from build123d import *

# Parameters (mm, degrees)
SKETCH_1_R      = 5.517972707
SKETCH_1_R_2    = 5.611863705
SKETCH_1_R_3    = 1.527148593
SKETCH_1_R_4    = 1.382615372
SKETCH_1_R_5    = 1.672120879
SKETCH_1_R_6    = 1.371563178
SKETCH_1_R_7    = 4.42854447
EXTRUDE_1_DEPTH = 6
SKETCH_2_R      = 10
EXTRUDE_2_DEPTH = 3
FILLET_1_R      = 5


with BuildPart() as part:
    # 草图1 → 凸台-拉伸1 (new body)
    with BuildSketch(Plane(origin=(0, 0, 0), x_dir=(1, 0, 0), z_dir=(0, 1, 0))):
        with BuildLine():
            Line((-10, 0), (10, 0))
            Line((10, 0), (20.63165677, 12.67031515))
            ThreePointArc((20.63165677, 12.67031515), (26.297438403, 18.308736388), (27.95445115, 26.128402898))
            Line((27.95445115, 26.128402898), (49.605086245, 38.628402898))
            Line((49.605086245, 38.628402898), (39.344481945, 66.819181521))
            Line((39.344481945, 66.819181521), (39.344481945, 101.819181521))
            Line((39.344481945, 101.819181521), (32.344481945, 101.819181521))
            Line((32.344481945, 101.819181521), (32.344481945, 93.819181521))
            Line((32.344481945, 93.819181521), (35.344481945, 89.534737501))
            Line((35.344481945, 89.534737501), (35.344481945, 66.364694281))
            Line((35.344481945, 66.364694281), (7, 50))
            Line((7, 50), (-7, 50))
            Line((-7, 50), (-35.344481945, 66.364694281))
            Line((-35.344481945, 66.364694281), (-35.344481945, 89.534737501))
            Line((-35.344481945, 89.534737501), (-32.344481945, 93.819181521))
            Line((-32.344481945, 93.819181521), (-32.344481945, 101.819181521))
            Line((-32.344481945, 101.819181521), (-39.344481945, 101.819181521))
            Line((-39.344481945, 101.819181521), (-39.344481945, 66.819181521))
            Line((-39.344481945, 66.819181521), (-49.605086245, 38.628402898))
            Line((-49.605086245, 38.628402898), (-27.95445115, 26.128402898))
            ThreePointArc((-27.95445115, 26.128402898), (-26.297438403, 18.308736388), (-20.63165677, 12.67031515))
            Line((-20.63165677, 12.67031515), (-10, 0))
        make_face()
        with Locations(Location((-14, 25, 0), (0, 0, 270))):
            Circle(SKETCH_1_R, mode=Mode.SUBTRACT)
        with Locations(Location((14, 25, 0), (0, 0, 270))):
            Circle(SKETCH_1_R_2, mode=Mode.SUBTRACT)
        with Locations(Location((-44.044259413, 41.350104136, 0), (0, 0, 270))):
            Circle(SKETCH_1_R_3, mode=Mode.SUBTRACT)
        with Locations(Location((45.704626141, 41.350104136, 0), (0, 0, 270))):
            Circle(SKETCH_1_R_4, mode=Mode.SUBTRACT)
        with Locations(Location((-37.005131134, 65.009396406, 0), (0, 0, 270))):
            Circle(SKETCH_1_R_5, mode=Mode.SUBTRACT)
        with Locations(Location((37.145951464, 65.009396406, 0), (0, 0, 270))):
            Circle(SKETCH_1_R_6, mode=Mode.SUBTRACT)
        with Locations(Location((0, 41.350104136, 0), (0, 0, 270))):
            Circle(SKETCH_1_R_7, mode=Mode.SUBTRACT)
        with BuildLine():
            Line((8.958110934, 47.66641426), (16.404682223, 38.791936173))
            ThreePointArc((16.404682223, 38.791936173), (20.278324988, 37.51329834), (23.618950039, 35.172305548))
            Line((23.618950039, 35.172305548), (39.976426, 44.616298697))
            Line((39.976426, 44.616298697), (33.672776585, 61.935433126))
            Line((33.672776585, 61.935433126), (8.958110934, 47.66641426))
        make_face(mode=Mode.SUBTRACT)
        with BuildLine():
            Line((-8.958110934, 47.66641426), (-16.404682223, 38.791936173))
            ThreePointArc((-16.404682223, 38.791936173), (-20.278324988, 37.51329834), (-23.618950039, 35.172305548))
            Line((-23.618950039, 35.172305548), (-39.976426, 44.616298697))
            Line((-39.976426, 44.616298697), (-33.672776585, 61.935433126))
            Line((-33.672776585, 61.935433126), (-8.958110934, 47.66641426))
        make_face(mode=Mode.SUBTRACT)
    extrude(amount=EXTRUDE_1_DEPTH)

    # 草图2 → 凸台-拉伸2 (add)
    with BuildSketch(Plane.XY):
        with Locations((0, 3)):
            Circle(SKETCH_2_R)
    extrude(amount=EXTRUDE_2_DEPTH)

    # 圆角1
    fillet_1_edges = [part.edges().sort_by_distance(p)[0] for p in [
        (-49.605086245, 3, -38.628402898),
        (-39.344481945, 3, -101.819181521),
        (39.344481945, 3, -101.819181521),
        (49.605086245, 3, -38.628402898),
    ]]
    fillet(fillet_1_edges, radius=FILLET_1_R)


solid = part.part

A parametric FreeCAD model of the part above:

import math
import FreeCAD as App
import Part
import Sketcher

V = App.Vector
Q = App.Units.Quantity


def edges_at(feature, points):
    """Names of the edges that pass closest to the given points."""
    edges = feature.Shape.Edges
    near = lambda p: min(range(len(edges)), key=lambda i: edges[i].distToShape(Part.Vertex(*p))[0])
    return sorted({f"Edge{near(p) + 1}" for p in points})

doc = App.newDocument("Part")
body = doc.addObject("PartDesign::Body", "Body")

# Sketch on XZ plane
sketch1 = body.newObject("Sketcher::SketchObject", "Sketch")
sketch1.AttachmentSupport = (doc.getObject("XZ_Plane"), [""])
sketch1.MapMode = "FlatFace"
sketch1.addGeometry(Part.LineSegment(V(-10, 0, 0), V(10, 0, 0)), False)
sketch1.addGeometry(Part.LineSegment(V(10, 0, 0), V(20.6, -12.7, 0)), False)
sketch1.addGeometry(Part.ArcOfCircle(Part.Circle(V(14, -25, 0), V(0, 0, 1), 14), math.radians(-5), math.radians(62)), False)
sketch1.addGeometry(Part.LineSegment(V(28, -26.1, 0), V(49.6, -38.6, 0)), False)
sketch1.addGeometry(Part.LineSegment(V(49.6, -38.6, 0), V(39.3, -66.8, 0)), False)
sketch1.addGeometry(Part.LineSegment(V(39.3, -66.8, 0), V(39.3, -101.8, 0)), False)
sketch1.addGeometry(Part.LineSegment(V(39.3, -101.8, 0), V(32.3, -101.8, 0)), False)
sketch1.addGeometry(Part.LineSegment(V(32.3, -101.8, 0), V(32.3, -93.8, 0)), False)
sketch1.addGeometry(Part.LineSegment(V(32.3, -93.8, 0), V(35.3, -89.5, 0)), False)
sketch1.addGeometry(Part.LineSegment(V(35.3, -89.5, 0), V(35.3, -66.4, 0)), False)
sketch1.addGeometry(Part.LineSegment(V(35.3, -66.4, 0), V(7, -50, 0)), False)
sketch1.addGeometry(Part.LineSegment(V(7, -50, 0), V(-7, -50, 0)), False)
sketch1.addGeometry(Part.LineSegment(V(-7, -50, 0), V(-35.3, -66.4, 0)), False)
sketch1.addGeometry(Part.LineSegment(V(-35.3, -66.4, 0), V(-35.3, -89.5, 0)), False)
sketch1.addGeometry(Part.LineSegment(V(-35.3, -89.5, 0), V(-32.3, -93.8, 0)), False)
sketch1.addGeometry(Part.LineSegment(V(-32.3, -93.8, 0), V(-32.3, -101.8, 0)), False)
sketch1.addGeometry(Part.LineSegment(V(-32.3, -101.8, 0), V(-39.3, -101.8, 0)), False)
sketch1.addGeometry(Part.LineSegment(V(-39.3, -101.8, 0), V(-39.3, -66.8, 0)), False)
sketch1.addGeometry(Part.LineSegment(V(-39.3, -66.8, 0), V(-49.6, -38.6, 0)), False)
sketch1.addGeometry(Part.LineSegment(V(-49.6, -38.6, 0), V(-28, -26.1, 0)), False)
sketch1.addGeometry(Part.ArcOfCircle(Part.Circle(V(-14, -25, 0), V(0, 0, 1), 14), math.radians(118), math.radians(185)), False)
sketch1.addGeometry(Part.LineSegment(V(-20.6, -12.7, 0), V(-10, 0, 0)), False)
sketch1.addGeometry(Part.Circle(V(-14, -25, 0), V(0, 0, 1), 5.5), False)
sketch1.addGeometry(Part.Circle(V(-44, -41.4, 0), V(0, 0, 1), 1.5), False)
sketch1.addGeometry(Part.Circle(V(0, -41.4, 0), V(0, 0, 1), 4.4), False)
sketch1.addGeometry(Part.Circle(V(14, -25, 0), V(0, 0, 1), 5.6), False)
sketch1.addGeometry(Part.Circle(V(45.7, -41.4, 0), V(0, 0, 1), 1.4), False)
sketch1.addGeometry(Part.LineSegment(V(-33.7, -61.9, 0), V(-9, -47.7, 0)), False)
sketch1.addGeometry(Part.LineSegment(V(-9, -47.7, 0), V(-16.4, -38.8, 0)), False)
sketch1.addGeometry(Part.ArcOfCircle(Part.Circle(V(-14, -25, 0), V(0, 0, 1), 14), math.radians(-133), math.radians(-100)), False)
sketch1.addGeometry(Part.LineSegment(V(-23.6, -35.2, 0), V(-40, -44.6, 0)), False)
sketch1.addGeometry(Part.LineSegment(V(-40, -44.6, 0), V(-33.7, -61.9, 0)), False)
sketch1.addGeometry(Part.Circle(V(-37, -65, 0), V(0, 0, 1), 1.7), False)
sketch1.addGeometry(Part.LineSegment(V(16.4, -38.8, 0), V(9, -47.7, 0)), False)
sketch1.addGeometry(Part.LineSegment(V(9, -47.7, 0), V(33.7, -61.9, 0)), False)
sketch1.addGeometry(Part.LineSegment(V(33.7, -61.9, 0), V(40, -44.6, 0)), False)
sketch1.addGeometry(Part.LineSegment(V(40, -44.6, 0), V(23.6, -35.2, 0)), False)
sketch1.addGeometry(Part.ArcOfCircle(Part.Circle(V(14, -25, 0), V(0, 0, 1), 14), math.radians(-80), math.radians(-47)), False)
sketch1.addGeometry(Part.Circle(V(37.1, -65, 0), V(0, 0, 1), 1.4), False)
sketch1.addConstraint(Sketcher.Constraint("Coincident", 0, 2, 1, 1))
sketch1.addConstraint(Sketcher.Constraint("Coincident", 1, 2, 2, 2))
sketch1.addConstraint(Sketcher.Constraint("Coincident", 2, 1, 3, 1))
sketch1.addConstraint(Sketcher.Constraint("Coincident", 3, 2, 4, 1))
sketch1.addConstraint(Sketcher.Constraint("Coincident", 4, 2, 5, 1))
sketch1.addConstraint(Sketcher.Constraint("Coincident", 5, 2, 6, 1))
sketch1.addConstraint(Sketcher.Constraint("Coincident", 6, 2, 7, 1))
sketch1.addConstraint(Sketcher.Constraint("Coincident", 7, 2, 8, 1))
sketch1.addConstraint(Sketcher.Constraint("Coincident", 8, 2, 9, 1))
sketch1.addConstraint(Sketcher.Constraint("Coincident", 9, 2, 10, 1))
sketch1.addConstraint(Sketcher.Constraint("Coincident", 10, 2, 11, 1))
sketch1.addConstraint(Sketcher.Constraint("Coincident", 11, 2, 12, 1))
sketch1.addConstraint(Sketcher.Constraint("Coincident", 12, 2, 13, 1))
sketch1.addConstraint(Sketcher.Constraint("Coincident", 13, 2, 14, 1))
sketch1.addConstraint(Sketcher.Constraint("Coincident", 14, 2, 15, 1))
sketch1.addConstraint(Sketcher.Constraint("Coincident", 15, 2, 16, 1))
sketch1.addConstraint(Sketcher.Constraint("Coincident", 16, 2, 17, 1))
sketch1.addConstraint(Sketcher.Constraint("Coincident", 17, 2, 18, 1))
sketch1.addConstraint(Sketcher.Constraint("Coincident", 18, 2, 19, 1))
sketch1.addConstraint(Sketcher.Constraint("Coincident", 19, 2, 20, 2))
sketch1.addConstraint(Sketcher.Constraint("Coincident", 20, 1, 21, 1))
sketch1.addConstraint(Sketcher.Constraint("Coincident", 21, 2, 0, 1))
sketch1.addConstraint(Sketcher.Constraint("Coincident", 27, 2, 28, 1))
sketch1.addConstraint(Sketcher.Constraint("Coincident", 28, 2, 29, 2))
sketch1.addConstraint(Sketcher.Constraint("Coincident", 29, 1, 30, 1))
sketch1.addConstraint(Sketcher.Constraint("Coincident", 30, 2, 31, 1))
sketch1.addConstraint(Sketcher.Constraint("Coincident", 31, 2, 27, 1))
sketch1.addConstraint(Sketcher.Constraint("Coincident", 33, 2, 34, 1))
sketch1.addConstraint(Sketcher.Constraint("Coincident", 34, 2, 35, 1))
sketch1.addConstraint(Sketcher.Constraint("Coincident", 35, 2, 36, 1))
sketch1.addConstraint(Sketcher.Constraint("Coincident", 36, 2, 37, 2))
sketch1.addConstraint(Sketcher.Constraint("Coincident", 37, 1, 33, 1))
sketch1.addConstraint(Sketcher.Constraint("Horizontal", 0))
sketch1.addConstraint(Sketcher.Constraint("Vertical", 5))
sketch1.addConstraint(Sketcher.Constraint("Horizontal", 6))
sketch1.addConstraint(Sketcher.Constraint("Vertical", 7))
sketch1.addConstraint(Sketcher.Constraint("Vertical", 9))
sketch1.addConstraint(Sketcher.Constraint("Horizontal", 11))
sketch1.addConstraint(Sketcher.Constraint("Vertical", 13))
sketch1.addConstraint(Sketcher.Constraint("Vertical", 15))
sketch1.addConstraint(Sketcher.Constraint("Horizontal", 16))
sketch1.addConstraint(Sketcher.Constraint("Vertical", 17))
sketch1.addConstraint(Sketcher.Constraint("Coincident", 22, 3, 20, 3))
sketch1.addConstraint(Sketcher.Constraint("Coincident", 25, 3, 2, 3))
sketch1.addConstraint(Sketcher.Constraint("Coincident", 29, 3, 20, 3))
sketch1.addConstraint(Sketcher.Constraint("Coincident", 37, 3, 2, 3))
sketch1.addConstraint(Sketcher.Constraint("Equal", 2, 20))
sketch1.addConstraint(Sketcher.Constraint("Equal", 20, 29))
sketch1.addConstraint(Sketcher.Constraint("Equal", 29, 37))
sketch1.addConstraint(Sketcher.Constraint("Symmetric", 0, 2, 21, 2, -1, 1))
sketch1.addConstraint(Sketcher.Constraint("Symmetric", 2, 3, 20, 3, -2))
sketch1.addConstraint(Sketcher.Constraint("Symmetric", 9, 2, 12, 2, -2))
sketch1.addConstraint(Sketcher.Constraint("Symmetric", 7, 2, 14, 2, -2))
sketch1.addConstraint(Sketcher.Constraint("Symmetric", 5, 2, 16, 2, -2))
sketch1.addConstraint(Sketcher.Constraint("Symmetric", 3, 2, 18, 2, -2))
sketch1.addConstraint(Sketcher.Constraint("Symmetric", 27, 2, 33, 2, -2))
sketch1.addConstraint(Sketcher.Constraint("Symmetric", 31, 2, 34, 2, -2))
sketch1.addConstraint(Sketcher.Constraint("Symmetric", 30, 2, 35, 2, -2))
sketch1.addConstraint(Sketcher.Constraint("PointOnObject", 24, 3, -2))
sketch1.addConstraint(Sketcher.Constraint("Parallel", 3, 10))
sketch1.addConstraint(Sketcher.Constraint("Parallel", 12, 19))
sketch1.addConstraint(Sketcher.Constraint("Parallel", 19, 27))
sketch1.addConstraint(Sketcher.Constraint("Parallel", 1, 28))
sketch1.addConstraint(Sketcher.Constraint("Parallel", 27, 30))
sketch1.addConstraint(Sketcher.Constraint("Parallel", 18, 31))
sketch1.addConstraint(Sketcher.Constraint("Parallel", 21, 33))
sketch1.addConstraint(Sketcher.Constraint("Parallel", 10, 34))
sketch1.addConstraint(Sketcher.Constraint("Parallel", 4, 35))
sketch1.addConstraint(Sketcher.Constraint("Parallel", 34, 36))
sketch1.addConstraint(Sketcher.Constraint("Horizontal", 23, 3, 24, 3))
sketch1.addConstraint(Sketcher.Constraint("Horizontal", 24, 3, 26, 3))
sketch1.addConstraint(Sketcher.Constraint("Horizontal", 32, 3, 38, 3))
sketch1.addConstraint(Sketcher.Constraint("Horizontal", 8, 2, 13, 2))
sketch1.addConstraint(Sketcher.Constraint("Horizontal", 1, 2, 20, 1))
sketch1.addConstraint(Sketcher.Constraint("Radius", 2, 14.0))
sketch1.addConstraint(Sketcher.Constraint("DistanceX", 0, 1, 0, 2, 20.0))
sketch1.addConstraint(Sketcher.Constraint("DistanceX", 6, 2, 6, 1, 7.0))
sketch1.addConstraint(Sketcher.Constraint("DistanceX", 11, 2, 11, 1, 14.0))
sketch1.addConstraint(Sketcher.Constraint("DistanceY", 5, 2, 5, 1, 35.0))
sketch1.addConstraint(Sketcher.Constraint("DistanceY", 7, 1, 7, 2, 8.0))
sketch1.addConstraint(Sketcher.Constraint("Angle", 1, Q("-50 deg")))
sketch1.addConstraint(Sketcher.Constraint("Angle", 3, Q("-30 deg")))
sketch1.addConstraint(Sketcher.Constraint("Angle", 4, Q("-110 deg")))
sketch1.addConstraint(Sketcher.Constraint("Angle", 8, Q("55 deg")))
sketch1.addConstraint(Sketcher.Constraint("Distance", 3, 25.0))
sketch1.addConstraint(Sketcher.Constraint("Distance", 4, 30.0))
sketch1.addConstraint(Sketcher.Constraint("DistanceX", -1, 1, 2, 3, 14.0))
sketch1.addConstraint(Sketcher.Constraint("DistanceY", 2, 3, -1, 1, 25.0))
sketch1.addConstraint(Sketcher.Constraint("DistanceY", 10, 2, -1, 1, 50.0))
sketch1.addConstraint(Sketcher.Constraint("DistanceX", 7, 2, 8, 2, 3.0))
sketch1.addConstraint(Sketcher.Constraint("Diameter", 24, 8.857089))
sketch1.addConstraint(Sketcher.Constraint("Diameter", 26, 2.765231))
sketch1.addConstraint(Sketcher.Constraint("Diameter", 32, 3.344242))
sketch1.addConstraint(Sketcher.Constraint("Diameter", 22, 11.035945))
sketch1.addConstraint(Sketcher.Constraint("Diameter", 23, 3.054297))
sketch1.addConstraint(Sketcher.Constraint("Diameter", 25, 11.223727))
sketch1.addConstraint(Sketcher.Constraint("Diameter", 38, 2.743126))
sketch1.addConstraint(Sketcher.Constraint("DistanceY", 30, 2, -1, 1, 44.616299))
sketch1.addConstraint(Sketcher.Constraint("DistanceY", 26, 3, 2, 1, 15.221701))
sketch1.addConstraint(Sketcher.Constraint("DistanceX", 19, 2, 29, 1, 4.335501))
sketch1.addConstraint(Sketcher.Constraint("DistanceX", 35, 2, 26, 3, 5.7282))
sketch1.addConstraint(Sketcher.Constraint("Distance", 10, 32.729389))
sketch1.addConstraint(Sketcher.Constraint("Distance", 28, 11.584808))
sketch1.addConstraint(Sketcher.Constraint("DistanceX", 23, 3, -1, 1, 44.044259))
sketch1.addConstraint(Sketcher.Constraint("DistanceX", 32, 3, -1, 1, 37.005131))
sketch1.addConstraint(Sketcher.Constraint("DistanceX", -1, 1, 38, 3, 37.145951))
sketch1.addConstraint(Sketcher.Constraint("DistanceX", 27, 2, -1, 1, 8.958111))
sketch1.addConstraint(Sketcher.Constraint("DistanceY", 8, 2, 38, 3, 24.525341))
pad1 = body.newObject("PartDesign::Pad", "Pad")
pad1.Profile = sketch1
pad1.Length = 6
pad1.Reversed = True

# Sketch on XY plane
sketch2 = body.newObject("Sketcher::SketchObject", "Sketch001")
sketch2.AttachmentSupport = (doc.getObject("XY_Plane"), [""])
sketch2.MapMode = "FlatFace"
sketch2.addGeometry(Part.Circle(V(0, 3, 0), V(0, 0, 1), 10), False)
sketch2.addConstraint(Sketcher.Constraint("PointOnObject", 0, 3, -2))
sketch2.addConstraint(Sketcher.Constraint("Diameter", 0, 20.0))
sketch2.addConstraint(Sketcher.Constraint("DistanceY", -1, 1, 0, 3, 3.0))
pad2 = body.newObject("PartDesign::Pad", "Pad001")
pad2.Profile = sketch2
pad2.Length = 3
doc.recompute()

fillet = body.newObject("PartDesign::Fillet", "Fillet")
fillet.Base = (pad2, edges_at(pad2, [
    (-49.605, 3, -38.628),
    (-39.344, 3, -101.819),
    (39.344, 3, -101.819),
    (49.605, 3, -38.628),
]))
fillet.Radius = 5

doc.recompute()
